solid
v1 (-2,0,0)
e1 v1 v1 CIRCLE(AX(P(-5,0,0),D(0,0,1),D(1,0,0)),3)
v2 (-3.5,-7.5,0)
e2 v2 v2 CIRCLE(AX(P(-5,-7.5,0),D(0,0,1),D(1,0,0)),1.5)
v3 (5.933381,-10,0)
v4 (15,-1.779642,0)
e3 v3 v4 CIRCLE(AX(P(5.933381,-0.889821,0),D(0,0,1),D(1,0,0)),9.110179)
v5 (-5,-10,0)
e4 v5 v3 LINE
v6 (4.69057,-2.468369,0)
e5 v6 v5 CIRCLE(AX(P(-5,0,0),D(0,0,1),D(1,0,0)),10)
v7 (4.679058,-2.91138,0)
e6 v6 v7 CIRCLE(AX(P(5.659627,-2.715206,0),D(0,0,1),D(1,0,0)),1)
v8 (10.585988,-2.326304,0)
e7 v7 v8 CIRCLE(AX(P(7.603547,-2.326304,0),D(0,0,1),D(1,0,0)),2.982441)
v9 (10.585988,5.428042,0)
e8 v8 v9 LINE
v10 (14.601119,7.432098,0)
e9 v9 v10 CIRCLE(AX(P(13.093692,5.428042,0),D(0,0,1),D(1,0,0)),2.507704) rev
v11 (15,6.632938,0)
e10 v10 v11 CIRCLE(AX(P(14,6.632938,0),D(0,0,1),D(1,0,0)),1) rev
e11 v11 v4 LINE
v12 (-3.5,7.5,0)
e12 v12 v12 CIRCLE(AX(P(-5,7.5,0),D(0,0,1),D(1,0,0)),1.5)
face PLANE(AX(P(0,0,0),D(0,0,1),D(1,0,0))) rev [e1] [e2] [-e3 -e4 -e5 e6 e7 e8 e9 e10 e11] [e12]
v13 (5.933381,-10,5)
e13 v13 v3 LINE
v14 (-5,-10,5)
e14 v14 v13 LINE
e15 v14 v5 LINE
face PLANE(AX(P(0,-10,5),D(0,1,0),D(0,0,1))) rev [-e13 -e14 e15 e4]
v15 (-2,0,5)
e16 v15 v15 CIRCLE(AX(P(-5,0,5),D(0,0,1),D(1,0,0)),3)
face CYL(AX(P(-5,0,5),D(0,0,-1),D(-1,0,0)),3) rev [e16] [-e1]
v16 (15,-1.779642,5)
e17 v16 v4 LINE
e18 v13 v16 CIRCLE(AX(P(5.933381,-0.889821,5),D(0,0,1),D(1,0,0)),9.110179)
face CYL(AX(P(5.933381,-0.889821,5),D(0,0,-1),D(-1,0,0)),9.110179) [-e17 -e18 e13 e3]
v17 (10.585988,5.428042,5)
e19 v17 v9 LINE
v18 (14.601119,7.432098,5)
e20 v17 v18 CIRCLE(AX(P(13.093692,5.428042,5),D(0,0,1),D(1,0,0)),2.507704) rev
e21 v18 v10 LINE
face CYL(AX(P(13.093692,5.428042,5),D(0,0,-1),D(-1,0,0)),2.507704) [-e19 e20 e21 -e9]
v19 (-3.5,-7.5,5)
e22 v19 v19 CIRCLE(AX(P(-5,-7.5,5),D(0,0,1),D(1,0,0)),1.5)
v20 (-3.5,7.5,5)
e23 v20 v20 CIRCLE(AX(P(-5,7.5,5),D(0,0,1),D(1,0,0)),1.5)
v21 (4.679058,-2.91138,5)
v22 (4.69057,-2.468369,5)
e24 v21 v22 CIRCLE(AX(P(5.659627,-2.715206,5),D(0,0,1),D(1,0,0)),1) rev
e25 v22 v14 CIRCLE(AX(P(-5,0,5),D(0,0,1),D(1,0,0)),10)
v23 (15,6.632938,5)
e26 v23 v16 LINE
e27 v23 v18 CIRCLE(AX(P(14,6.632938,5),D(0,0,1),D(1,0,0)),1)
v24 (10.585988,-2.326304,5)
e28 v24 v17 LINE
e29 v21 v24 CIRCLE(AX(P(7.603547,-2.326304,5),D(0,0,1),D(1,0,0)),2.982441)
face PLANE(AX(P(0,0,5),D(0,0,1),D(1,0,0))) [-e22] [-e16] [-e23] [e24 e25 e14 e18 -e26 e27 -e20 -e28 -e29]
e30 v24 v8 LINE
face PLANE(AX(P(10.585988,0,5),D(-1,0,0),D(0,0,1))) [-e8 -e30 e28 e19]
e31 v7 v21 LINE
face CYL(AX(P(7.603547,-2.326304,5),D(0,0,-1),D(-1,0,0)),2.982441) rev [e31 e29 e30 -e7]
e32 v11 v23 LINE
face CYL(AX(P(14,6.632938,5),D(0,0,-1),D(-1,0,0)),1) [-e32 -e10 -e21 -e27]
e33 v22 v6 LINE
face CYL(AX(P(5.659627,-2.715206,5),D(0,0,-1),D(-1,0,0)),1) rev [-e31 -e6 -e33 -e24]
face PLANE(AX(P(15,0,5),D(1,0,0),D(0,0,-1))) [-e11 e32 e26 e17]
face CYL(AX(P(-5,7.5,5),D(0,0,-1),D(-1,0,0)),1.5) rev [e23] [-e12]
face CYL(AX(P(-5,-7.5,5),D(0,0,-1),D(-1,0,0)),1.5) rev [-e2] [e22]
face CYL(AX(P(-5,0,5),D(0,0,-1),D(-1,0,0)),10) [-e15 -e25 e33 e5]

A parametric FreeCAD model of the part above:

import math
import FreeCAD as App
import Part
import Sketcher
from FreeCAD import Vector
Q = App.Units.Quantity


def edges_at(feature, points):
    """Names of the edges that pass closest to the given points."""
    edges = feature.Shape.Edges
    near = lambda p: min(range(len(edges)), key=lambda i: edges[i].distToShape(Part.Vertex(*p))[0])
    return sorted({f"Edge{near(p) + 1}" for p in points})

doc = App.newDocument("Part")
body = doc.addObject("PartDesign::Body", "Body")

# Sketch on XY plane
sketch1 = body.newObject("Sketcher::SketchObject", "Sketch")
sketch1.AttachmentSupport = (doc.getObject("XY_Plane"), [""])
sketch1.MapMode = "FlatFace"
sketch1.addGeometry(Part.LineSegment(Vector(10.6, 5.4, 0), Vector(10.6, -2.3, 0)), False)
sketch1.addGeometry(Part.ArcOfCircle(Part.Circle(Vector(7.6, -2.3, 0), Vector(0, 0, 1), 3), math.radians(-174), math.radians(0)), False)
sketch1.addGeometry(Part.ArcOfCircle(Part.Circle(Vector(-5, 0, 0), Vector(0, 0, 1), 10), math.radians(-15), math.radians(270)), False)
sketch1.addGeometry(Part.LineSegment(Vector(-5, -10, 0), Vector(5.9, -10, 0)), False)
sketch1.addGeometry(Part.ArcOfCircle(Part.Circle(Vector(5.9, -0.9, 0), Vector(0, 0, 1), 9.1), math.radians(-90), math.radians(-6)), False)
sketch1.addGeometry(Part.LineSegment(Vector(15, -1.8, 0), Vector(15, 7.1, 0)), False)
sketch1.addGeometry(Part.ArcOfCircle(Part.Circle(Vector(13.1, 5.4, 0), Vector(0, 0, 1), 2.5), math.radians(41), math.radians(180)), False)
sketch1.addGeometry(Part.Circle(Vector(-5, -7.5, 0), Vector(0, 0, 1), 1.5), False)
sketch1.addGeometry(Part.Circle(Vector(-5, 0, 0), Vector(0, 0, 1), 3), False)
sketch1.addGeometry(Part.Circle(Vector(-5, 7.5, 0), Vector(0, 0, 1), 1.5), False)
sketch1.addConstraint(Sketcher.Constraint("Tangent", 0, 2, 1, 2))
sketch1.addConstraint(Sketcher.Constraint("Coincident", 1, 1, 2, 1))
sketch1.addConstraint(Sketcher.Constraint("Tangent", 2, 2, 3, 1))
sketch1.addConstraint(Sketcher.Constraint("Tangent", 3, 2, 4, 1))
sketch1.addConstraint(Sketcher.Constraint("Coincident", 4, 2, 5, 1))
sketch1.addConstraint(Sketcher.Constraint("Coincident", 5, 2, 6, 1))
sketch1.addConstraint(Sketcher.Constraint("Tangent", 6, 2, 0, 1))
sketch1.addConstraint(Sketcher.Constraint("Vertical", 0))
sketch1.addConstraint(Sketcher.Constraint("Horizontal", 3))
sketch1.addConstraint(Sketcher.Constraint("Vertical", 5))
sketch1.addConstraint(Sketcher.Constraint("Coincident", 8, 3, 2, 3))
sketch1.addConstraint(Sketcher.Constraint("Equal", 7, 9))
sketch1.addConstraint(Sketcher.Constraint("Symmetric", 7, 3, 9, 3, -1))
sketch1.addConstraint(Sketcher.Constraint("PointOnObject", 2, 3, -1))
sketch1.addConstraint(Sketcher.Constraint("Vertical", 2, 3, 7, 3))
sketch1.addConstraint(Sketcher.Constraint("Diameter", 7, Q("3 mm")))
sketch1.addConstraint(Sketcher.Constraint("Diameter", 8, Q("6 mm")))
sketch1.addConstraint(Sketcher.Constraint("Radius", 2, Q("10 mm")))
sketch1.addConstraint(Sketcher.Constraint("DistanceX", 2, 3, -1, 1, Q("5 mm")))
sketch1.addConstraint(Sketcher.Constraint("DistanceX", -1, 1, 4, 2, Q("15 mm")))
sketch1.addConstraint(Sketcher.Constraint("DistanceY", 7, 3, 9, 3, Q("15 mm")))
sketch1.addConstraint(Sketcher.Constraint("Radius", 1, Q("2.982441 mm")))
sketch1.addConstraint(Sketcher.Constraint("Radius", 4, Q("9.110179 mm")))
sketch1.addConstraint(Sketcher.Constraint("Radius", 6, Q("2.507704 mm")))
sketch1.addConstraint(Sketcher.Constraint("DistanceX", 3, 1, 3, 2, Q("10.933381 mm")))
sketch1.addConstraint(Sketcher.Constraint("DistanceY", 0, 2, 0, 1, Q("7.754345 mm")))
sketch1.addConstraint(Sketcher.Constraint("DistanceY", 5, 1, 5, 2, Q("8.836967 mm")))
sketch1.addConstraint(Sketcher.Constraint("DistanceX", -1, 1, 6, 3, Q("13.093692 mm")))
pad1 = body.newObject("PartDesign::Pad", "Pad")
pad1.Profile = sketch1
pad1.Length = 5
doc.recompute()

fillet = body.newObject("PartDesign::Fillet", "Fillet")
fillet.Base = (pad1, edges_at(pad1, [(15, 7.057, 2.5)]))
fillet.Radius = 1
doc.recompute()

fillet2 = body.newObject("PartDesign::Fillet", "Fillet001")
fillet2.Base = (fillet, edges_at(fillet, [(4.64, -2.66, 2.5)]))
fillet2.Radius = 1

doc.recompute()
